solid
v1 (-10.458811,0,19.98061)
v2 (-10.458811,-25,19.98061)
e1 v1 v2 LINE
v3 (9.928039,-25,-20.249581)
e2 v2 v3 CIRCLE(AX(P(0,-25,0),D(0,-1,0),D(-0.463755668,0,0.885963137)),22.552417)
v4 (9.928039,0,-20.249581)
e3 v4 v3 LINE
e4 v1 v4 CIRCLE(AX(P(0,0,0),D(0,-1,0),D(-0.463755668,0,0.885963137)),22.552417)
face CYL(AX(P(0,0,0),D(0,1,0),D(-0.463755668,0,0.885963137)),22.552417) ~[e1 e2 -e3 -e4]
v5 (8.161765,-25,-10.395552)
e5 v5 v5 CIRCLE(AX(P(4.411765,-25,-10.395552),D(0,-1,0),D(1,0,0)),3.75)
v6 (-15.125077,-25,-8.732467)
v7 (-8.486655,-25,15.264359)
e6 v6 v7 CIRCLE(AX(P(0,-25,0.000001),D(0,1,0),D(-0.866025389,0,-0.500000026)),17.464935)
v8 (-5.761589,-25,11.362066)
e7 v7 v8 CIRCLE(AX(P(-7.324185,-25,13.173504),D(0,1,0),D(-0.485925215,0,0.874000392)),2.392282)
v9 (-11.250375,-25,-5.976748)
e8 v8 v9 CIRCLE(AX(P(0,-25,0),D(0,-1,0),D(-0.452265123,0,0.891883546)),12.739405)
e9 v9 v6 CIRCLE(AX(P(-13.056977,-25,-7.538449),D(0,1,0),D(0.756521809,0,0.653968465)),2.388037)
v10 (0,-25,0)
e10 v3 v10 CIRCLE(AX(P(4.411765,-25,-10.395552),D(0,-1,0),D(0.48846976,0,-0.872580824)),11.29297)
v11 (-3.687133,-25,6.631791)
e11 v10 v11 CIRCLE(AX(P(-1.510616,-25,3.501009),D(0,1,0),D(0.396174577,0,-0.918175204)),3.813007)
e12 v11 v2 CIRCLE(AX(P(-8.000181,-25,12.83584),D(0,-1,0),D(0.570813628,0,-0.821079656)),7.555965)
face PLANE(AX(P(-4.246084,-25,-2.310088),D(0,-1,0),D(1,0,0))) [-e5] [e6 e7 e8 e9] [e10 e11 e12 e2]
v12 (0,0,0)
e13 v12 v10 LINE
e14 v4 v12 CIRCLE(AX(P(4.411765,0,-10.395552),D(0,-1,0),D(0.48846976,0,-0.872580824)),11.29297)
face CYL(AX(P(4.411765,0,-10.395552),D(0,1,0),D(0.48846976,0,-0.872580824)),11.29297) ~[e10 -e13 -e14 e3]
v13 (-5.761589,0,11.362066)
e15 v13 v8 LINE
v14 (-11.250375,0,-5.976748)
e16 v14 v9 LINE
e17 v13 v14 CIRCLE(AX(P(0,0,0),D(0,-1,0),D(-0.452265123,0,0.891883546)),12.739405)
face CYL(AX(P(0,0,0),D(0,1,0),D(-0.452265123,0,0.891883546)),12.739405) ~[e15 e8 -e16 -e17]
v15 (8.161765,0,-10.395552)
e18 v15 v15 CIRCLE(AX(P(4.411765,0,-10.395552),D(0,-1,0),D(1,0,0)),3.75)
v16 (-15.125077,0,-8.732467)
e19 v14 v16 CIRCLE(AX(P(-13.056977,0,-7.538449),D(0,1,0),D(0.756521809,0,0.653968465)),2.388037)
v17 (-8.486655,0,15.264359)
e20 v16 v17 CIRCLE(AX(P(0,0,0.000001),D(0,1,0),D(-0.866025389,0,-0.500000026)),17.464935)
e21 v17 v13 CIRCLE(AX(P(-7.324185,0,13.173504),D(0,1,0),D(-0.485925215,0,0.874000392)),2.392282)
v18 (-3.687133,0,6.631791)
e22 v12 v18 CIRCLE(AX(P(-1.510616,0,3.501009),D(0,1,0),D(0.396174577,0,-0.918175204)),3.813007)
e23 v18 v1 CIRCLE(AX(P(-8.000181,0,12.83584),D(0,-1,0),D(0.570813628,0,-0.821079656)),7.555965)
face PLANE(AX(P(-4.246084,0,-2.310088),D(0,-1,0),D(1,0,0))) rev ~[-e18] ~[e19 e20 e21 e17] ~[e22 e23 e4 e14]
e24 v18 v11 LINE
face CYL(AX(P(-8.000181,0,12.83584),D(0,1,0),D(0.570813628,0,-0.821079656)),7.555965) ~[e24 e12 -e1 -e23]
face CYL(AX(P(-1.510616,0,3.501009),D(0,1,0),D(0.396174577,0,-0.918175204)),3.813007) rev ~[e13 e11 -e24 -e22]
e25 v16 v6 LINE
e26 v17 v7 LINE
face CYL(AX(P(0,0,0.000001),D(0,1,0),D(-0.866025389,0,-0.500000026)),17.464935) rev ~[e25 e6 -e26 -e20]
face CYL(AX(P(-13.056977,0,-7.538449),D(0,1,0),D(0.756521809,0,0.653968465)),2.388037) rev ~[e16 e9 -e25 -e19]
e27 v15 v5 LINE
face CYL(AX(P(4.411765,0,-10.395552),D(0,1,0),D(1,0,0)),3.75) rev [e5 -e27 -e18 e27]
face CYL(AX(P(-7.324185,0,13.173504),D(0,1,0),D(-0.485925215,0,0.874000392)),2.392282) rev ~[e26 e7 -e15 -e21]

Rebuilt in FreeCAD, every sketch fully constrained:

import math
import FreeCAD as App
import Part
import Sketcher
from FreeCAD import Vector
Q = App.Units.Quantity

doc = App.newDocument("Part")
body = doc.addObject("PartDesign::Body", "Body")

# Sketch on XZ plane
sketch1 = body.newObject("Sketcher::SketchObject", "Sketch")
sketch1.AttachmentSupport = (doc.getObject("XZ_Plane"), [""])
sketch1.MapMode = "FlatFace"
sketch1.addGeometry([
    Part.ArcOfCircle(Part.Circle(Vector(-8, 12.8, 0), Vector(0, 0, 1), 7.6), math.radians(-55), math.radians(109)),  # 0
    Part.ArcOfCircle(Part.Circle(Vector(0, 0, 0), Vector(0, 0, 1), 22.6), math.radians(118), math.radians(296)),  # 1
    Part.ArcOfCircle(Part.Circle(Vector(4.4, -10.4, 0), Vector(0, 0, 1), 11.3), math.radians(-61), math.radians(113)),  # 2
    Part.ArcOfCircle(Part.Circle(Vector(-1.5, 3.5, 0), Vector(0, 0, 1), 3.8), math.radians(125), math.radians(293)),  # 3
    Part.Circle(Vector(4.4, -10.4, 0), Vector(0, 0, 1), 3.8),  # 4
    Part.ArcOfCircle(Part.Circle(Vector(-13.1, -7.5, 0), Vector(0, 0, 1), 2.4), math.radians(-150), math.radians(41)),  # 5
    Part.ArcOfCircle(Part.Circle(Vector(0, 0, 0), Vector(0, 0, 1), 17.5), math.radians(119), math.radians(210)),  # 6
    Part.ArcOfCircle(Part.Circle(Vector(-7.3, 13.2, 0), Vector(0, 0, 1), 2.4), math.radians(-49), math.radians(119)),  # 7
    Part.ArcOfCircle(Part.Circle(Vector(0, 0, 0), Vector(0, 0, 1), 12.7), math.radians(117), math.radians(208)),  # 8
], False)
sketch1.addConstraint([
    Sketcher.Constraint("Coincident", 0, 2, 1, 1),
    Sketcher.Constraint("Coincident", 1, 2, 2, 1),
    Sketcher.Constraint("Coincident", 2, 2, 3, 2),
    Sketcher.Constraint("Tangent", 3, 1, 0, 1),
    Sketcher.Constraint("Tangent", 5, 1, 6, 2),
    Sketcher.Constraint("Tangent", 6, 1, 7, 2),
    Sketcher.Constraint("Coincident", 7, 1, 8, 1),
    Sketcher.Constraint("Coincident", 8, 2, 5, 2),
    Sketcher.Constraint("Coincident", 1, 3, -1, 1),
    Sketcher.Constraint("Coincident", 6, 3, -1, 1),
    Sketcher.Constraint("Coincident", 8, 3, -1, 1),
    Sketcher.Constraint("Coincident", 2, 2, -1, 1),
    Sketcher.Constraint("Coincident", 4, 3, 2, 3),
    Sketcher.Constraint("Diameter", 4, Q("7.5 mm")),
    Sketcher.Constraint("Radius", 2, Q("11.29297 mm")),
    Sketcher.Constraint("Radius", 7, Q("2.392282 mm")),
    Sketcher.Constraint("Radius", 0, Q("7.555965 mm")),
    Sketcher.Constraint("Radius", 1, Q("22.552417 mm")),
    Sketcher.Constraint("Radius", 3, Q("3.813007 mm")),
    Sketcher.Constraint("Radius", 5, Q("2.388037 mm")),
    Sketcher.Constraint("Radius", 6, Q("17.464935 mm")),
    Sketcher.Constraint("Radius", 8, Q("12.739405 mm")),
    Sketcher.Constraint("DistanceY", 3, 3, 0, 2, Q("16.479601 mm")),
    Sketcher.Constraint("DistanceX", 5, 1, 5, 3, Q("2.0681 mm")),
    Sketcher.Constraint("DistanceX", 0, 3, -1, 1, Q("8.000181 mm")),
    Sketcher.Constraint("DistanceX", -1, 1, 1, 2, Q("9.928039 mm")),
    Sketcher.Constraint("DistanceY", -1, 1, 6, 1, Q("15.264359 mm")),
])
pad1 = body.newObject("PartDesign::Pad", "Pad")
pad1.Profile = sketch1
pad1.Length = 25

doc.recompute()
